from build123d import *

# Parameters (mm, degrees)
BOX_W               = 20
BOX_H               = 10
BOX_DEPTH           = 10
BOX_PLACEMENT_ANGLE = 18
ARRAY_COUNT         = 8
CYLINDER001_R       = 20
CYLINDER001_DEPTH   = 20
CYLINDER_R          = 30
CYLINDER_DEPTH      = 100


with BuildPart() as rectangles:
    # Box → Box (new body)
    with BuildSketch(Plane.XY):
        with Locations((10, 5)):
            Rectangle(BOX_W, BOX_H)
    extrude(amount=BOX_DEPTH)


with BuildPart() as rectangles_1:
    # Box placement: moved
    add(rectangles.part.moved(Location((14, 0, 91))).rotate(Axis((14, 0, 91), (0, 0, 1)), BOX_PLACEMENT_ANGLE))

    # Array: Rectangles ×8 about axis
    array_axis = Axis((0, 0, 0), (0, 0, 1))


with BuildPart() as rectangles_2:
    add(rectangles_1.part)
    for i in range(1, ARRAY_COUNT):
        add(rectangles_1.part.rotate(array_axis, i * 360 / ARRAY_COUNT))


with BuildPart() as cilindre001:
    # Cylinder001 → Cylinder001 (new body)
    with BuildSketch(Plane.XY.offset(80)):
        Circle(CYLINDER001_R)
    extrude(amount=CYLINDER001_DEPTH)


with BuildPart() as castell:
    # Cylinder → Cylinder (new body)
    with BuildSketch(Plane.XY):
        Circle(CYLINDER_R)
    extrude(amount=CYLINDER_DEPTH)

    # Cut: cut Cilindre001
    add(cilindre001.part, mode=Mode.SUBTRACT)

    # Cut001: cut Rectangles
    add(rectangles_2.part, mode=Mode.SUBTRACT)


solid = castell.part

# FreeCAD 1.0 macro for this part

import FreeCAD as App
import Part
import Sketcher
from FreeCAD import Vector
Q = App.Units.Quantity


def add_polygon(sketch, points):
    """Adds a closed chain of lines whose ends are joined by coincident constraints."""
    first, n = sketch.GeometryCount, len(points)
    for a, b in zip(points, points[1:] + points[:1]):
        sketch.addGeometry(Part.LineSegment(App.Vector(*a, 0), App.Vector(*b, 0)), False)
    for i in range(n):
        sketch.addConstraint(Sketcher.Constraint("Coincident", first + i, 2, first + (i + 1) % n, 1))

doc = App.newDocument("Part")
params = doc.addObject("Spreadsheet::Sheet", "Params")
for row, (alias, value) in enumerate([
    ("sketch1_width", "20 mm"),
    ("sketch1_height", "10 mm"),
    ("pad1_length", "10 mm"),
    ("sketch2_diameter", "40 mm"),
    ("pad2_length", "20 mm"),
    ("sketch3_diameter", "60 mm"),
    ("pad3_length", "100 mm"),
], start=1):
    params.set(f"A{row}", alias)
    params.set(f"B{row}", "=" + value)
    params.setAlias(f"B{row}", alias)

body = doc.addObject("PartDesign::Body", "Body")

# Sketch on XY plane
sketch1 = body.newObject("Sketcher::SketchObject", "Sketch")
sketch1.AttachmentSupport = (doc.getObject("XY_Plane"), [""])
sketch1.MapMode = "FlatFace"
add_polygon(sketch1, [(0, 10), (0, 0), (20, 0), (20, 10)])  # lines 0-3
sketch1.addConstraint([
    Sketcher.Constraint("Vertical", 0),
    Sketcher.Constraint("Horizontal", 1),
    Sketcher.Constraint("Vertical", 2),
    Sketcher.Constraint("Horizontal", 3),
    Sketcher.Constraint("Coincident", 0, 2, -1, 1),
    Sketcher.Constraint("DistanceX", 1, 1, 1, 2, Q("20 mm")),
    Sketcher.Constraint("DistanceY", 0, 2, 0, 1, Q("10 mm")),
])
sketch1.setExpression("Constraints[9]", "Params.sketch1_width")
sketch1.setExpression("Constraints[10]", "Params.sketch1_height")
pad1 = body.newObject("PartDesign::Pad", "Pad")
pad1.Profile = sketch1
pad1.setExpression("Length", "Params.pad1_length")
body2 = doc.addObject("PartDesign::Body", "Body001")
doc.recompute()

body.Placement = App.Placement(Vector(14, 0, 91), App.Rotation(Vector(0, 0, 1), 18))
boolean = body2.newObject("PartDesign::Boolean", "Boolean")
boolean.Type = "Fuse"
boolean.addObjects([body])
body3 = doc.addObject("PartDesign::Body", "Body002")
body3.AllowCompound = True
doc.recompute()

body3.BaseFeature = body2
doc.recompute()

body4 = doc.addObject("PartDesign::Body", "Body003")
body4.BaseFeature = body2
body4.Placement = App.Placement(Vector(0, 0, 0), App.Rotation(Vector(0, 0, 1), 45))
boolean2 = body3.newObject("PartDesign::Boolean", "Boolean001")
boolean2.Type = "Fuse"
boolean2.addObjects([body4])
doc.recompute()

body5 = doc.addObject("PartDesign::Body", "Body004")
body5.BaseFeature = body2
body5.Placement = App.Placement(Vector(0, 0, 0), App.Rotation(Vector(0, 0, 1), 90))
boolean3 = body3.newObject("PartDesign::Boolean", "Boolean002")
boolean3.Type = "Fuse"
boolean3.addObjects([body5])
doc.recompute()

body6 = doc.addObject("PartDesign::Body", "Body005")
body6.BaseFeature = body2
body6.Placement = App.Placement(Vector(0, 0, 0), App.Rotation(Vector(0, 0, 1), 135))
boolean4 = body3.newObject("PartDesign::Boolean", "Boolean003")
boolean4.Type = "Fuse"
boolean4.addObjects([body6])
doc.recompute()

body7 = doc.addObject("PartDesign::Body", "Body006")
body7.BaseFeature = body2
body7.Placement = App.Placement(Vector(0, 0, 0), App.Rotation(Vector(0, 0, 1), 180))
boolean5 = body3.newObject("PartDesign::Boolean", "Boolean004")
boolean5.Type = "Fuse"
boolean5.addObjects([body7])
doc.recompute()

body8 = doc.addObject("PartDesign::Body", "Body007")
body8.BaseFeature = body2
body8.Placement = App.Placement(Vector(0, 0, 0), App.Rotation(Vector(0, 0, 1), 225))
boolean6 = body3.newObject("PartDesign::Boolean", "Boolean005")
boolean6.Type = "Fuse"
boolean6.addObjects([body8])
doc.recompute()

body9 = doc.addObject("PartDesign::Body", "Body008")
body9.BaseFeature = body2
body9.Placement = App.Placement(Vector(0, 0, 0), App.Rotation(Vector(0, 0, 1), 270))
boolean7 = body3.newObject("PartDesign::Boolean", "Boolean006")
boolean7.Type = "Fuse"
boolean7.addObjects([body9])
doc.recompute()

body2.Placement = App.Placement(Vector(0, 0, 0), App.Rotation(Vector(0, 0, 1), 315))
boolean8 = body3.newObject("PartDesign::Boolean", "Boolean007")
boolean8.Type = "Fuse"
boolean8.addObjects([body2])
body10 = doc.addObject("PartDesign::Body", "Body009")

# Sketch on XY plane
sketch2 = body10.newObject("Sketcher::SketchObject", "Sketch001")
sketch2.AttachmentSupport = (doc.getObject("XY_Plane009"), [""])
sketch2.MapMode = "FlatFace"
sketch2.AttachmentOffset = App.Placement(Vector(0, 0, 80), App.Rotation())
sketch2.addGeometry(Part.Circle(Vector(0, 0, 0), Vector(0, 0, 1), 20), False)
sketch2.addConstraint([
    Sketcher.Constraint("Coincident", 0, 3, -1, 1),
    Sketcher.Constraint("Diameter", 0, Q("40 mm")),
])
sketch2.setExpression("Constraints[1]", "Params.sketch2_diameter")
pad2 = body10.newObject("PartDesign::Pad", "Pad001")
pad2.Profile = sketch2
pad2.setExpression("Length", "Params.pad2_length")
body11 = doc.addObject("PartDesign::Body", "Body010")

# Sketch on XY plane
sketch3 = body11.newObject("Sketcher::SketchObject", "Sketch002")
sketch3.AttachmentSupport = (doc.getObject("XY_Plane010"), [""])
sketch3.MapMode = "FlatFace"
sketch3.addGeometry(Part.Circle(Vector(0, 0, 0), Vector(0, 0, 1), 30), False)
sketch3.addConstraint([
    Sketcher.Constraint("Coincident", 0, 3, -1, 1),
    Sketcher.Constraint("Diameter", 0, Q("60 mm")),
])
sketch3.setExpression("Constraints[1]", "Params.sketch3_diameter")
pad3 = body11.newObject("PartDesign::Pad", "Pad002")
pad3.Profile = sketch3
pad3.setExpression("Length", "Params.pad3_length")
doc.recompute()

boolean9 = body11.newObject("PartDesign::Boolean", "Boolean008")
boolean9.Type = "Cut"
boolean9.addObjects([body10])
doc.recompute()

boolean10 = body11.newObject("PartDesign::Boolean", "Boolean009")
boolean10.Type = "Cut"
boolean10.addObjects([body3])

doc.recompute()
